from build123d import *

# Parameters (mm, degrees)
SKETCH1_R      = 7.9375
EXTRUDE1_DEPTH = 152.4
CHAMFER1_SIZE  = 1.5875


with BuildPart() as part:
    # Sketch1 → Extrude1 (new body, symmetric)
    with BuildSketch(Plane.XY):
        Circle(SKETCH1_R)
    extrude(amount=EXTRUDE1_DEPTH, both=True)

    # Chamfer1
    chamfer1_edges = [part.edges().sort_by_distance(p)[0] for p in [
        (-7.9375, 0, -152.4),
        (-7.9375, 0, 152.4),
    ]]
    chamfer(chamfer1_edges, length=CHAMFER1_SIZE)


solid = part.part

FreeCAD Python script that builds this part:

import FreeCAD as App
import Part
import Sketcher
Q = App.Units.Quantity


def edges_at(feature, points):
    """Names of the edges that pass closest to the given points."""
    edges = feature.Shape.Edges
    near = lambda p: min(range(len(edges)), key=lambda i: edges[i].distToShape(Part.Vertex(*p))[0])
    return sorted({f"Edge{near(p) + 1}" for p in points})

doc = App.newDocument("Part")
params = doc.addObject("Spreadsheet::Sheet", "Params")
for row, (alias, value) in enumerate([
    ("sketch1_diameter", "0.625 in"),
    ("pad1_length", "12 in"),
    ("chamfer_size", "0.0625 in"),
], start=1):
    params.set(f"A{row}", alias)
    params.set(f"B{row}", "=" + value)
    params.setAlias(f"B{row}", alias)

body = doc.addObject("PartDesign::Body", "Body")

# Sketch on XY plane
sketch1 = doc.addObject("Sketcher::SketchObject", "Sketch")
body.addObject(sketch1)
sketch1.AttachmentSupport = (doc.XY_Plane, [""])
sketch1.MapMode = "FlatFace"
sketch1.addGeometry(Part.Circle(App.Vector(0, 0, 0), App.Vector(0, 0, 1), 7.9375), False)
sketch1.addConstraint(Sketcher.Constraint("Coincident", 0, 3, -1, 1))
sketch1.addConstraint(Sketcher.Constraint("Diameter", 0, Q("0.625 in")))
sketch1.setExpression("Constraints[1]", "Params.sketch1_diameter")
pad1 = doc.addObject("PartDesign::Pad", "Pad")
body.addObject(pad1)
pad1.Profile = sketch1
pad1.setExpression("Length", "Params.pad1_length")
pad1.Midplane = True
doc.recompute()

chamfer = doc.addObject("PartDesign::Chamfer", "Chamfer")
body.addObject(chamfer)
chamfer.Base = (pad1, edges_at(pad1, [(-7.938, 0, -152.4), (-7.938, 0, 152.4)]))
chamfer.setExpression("Size", "Params.chamfer_size")

doc.recompute()
